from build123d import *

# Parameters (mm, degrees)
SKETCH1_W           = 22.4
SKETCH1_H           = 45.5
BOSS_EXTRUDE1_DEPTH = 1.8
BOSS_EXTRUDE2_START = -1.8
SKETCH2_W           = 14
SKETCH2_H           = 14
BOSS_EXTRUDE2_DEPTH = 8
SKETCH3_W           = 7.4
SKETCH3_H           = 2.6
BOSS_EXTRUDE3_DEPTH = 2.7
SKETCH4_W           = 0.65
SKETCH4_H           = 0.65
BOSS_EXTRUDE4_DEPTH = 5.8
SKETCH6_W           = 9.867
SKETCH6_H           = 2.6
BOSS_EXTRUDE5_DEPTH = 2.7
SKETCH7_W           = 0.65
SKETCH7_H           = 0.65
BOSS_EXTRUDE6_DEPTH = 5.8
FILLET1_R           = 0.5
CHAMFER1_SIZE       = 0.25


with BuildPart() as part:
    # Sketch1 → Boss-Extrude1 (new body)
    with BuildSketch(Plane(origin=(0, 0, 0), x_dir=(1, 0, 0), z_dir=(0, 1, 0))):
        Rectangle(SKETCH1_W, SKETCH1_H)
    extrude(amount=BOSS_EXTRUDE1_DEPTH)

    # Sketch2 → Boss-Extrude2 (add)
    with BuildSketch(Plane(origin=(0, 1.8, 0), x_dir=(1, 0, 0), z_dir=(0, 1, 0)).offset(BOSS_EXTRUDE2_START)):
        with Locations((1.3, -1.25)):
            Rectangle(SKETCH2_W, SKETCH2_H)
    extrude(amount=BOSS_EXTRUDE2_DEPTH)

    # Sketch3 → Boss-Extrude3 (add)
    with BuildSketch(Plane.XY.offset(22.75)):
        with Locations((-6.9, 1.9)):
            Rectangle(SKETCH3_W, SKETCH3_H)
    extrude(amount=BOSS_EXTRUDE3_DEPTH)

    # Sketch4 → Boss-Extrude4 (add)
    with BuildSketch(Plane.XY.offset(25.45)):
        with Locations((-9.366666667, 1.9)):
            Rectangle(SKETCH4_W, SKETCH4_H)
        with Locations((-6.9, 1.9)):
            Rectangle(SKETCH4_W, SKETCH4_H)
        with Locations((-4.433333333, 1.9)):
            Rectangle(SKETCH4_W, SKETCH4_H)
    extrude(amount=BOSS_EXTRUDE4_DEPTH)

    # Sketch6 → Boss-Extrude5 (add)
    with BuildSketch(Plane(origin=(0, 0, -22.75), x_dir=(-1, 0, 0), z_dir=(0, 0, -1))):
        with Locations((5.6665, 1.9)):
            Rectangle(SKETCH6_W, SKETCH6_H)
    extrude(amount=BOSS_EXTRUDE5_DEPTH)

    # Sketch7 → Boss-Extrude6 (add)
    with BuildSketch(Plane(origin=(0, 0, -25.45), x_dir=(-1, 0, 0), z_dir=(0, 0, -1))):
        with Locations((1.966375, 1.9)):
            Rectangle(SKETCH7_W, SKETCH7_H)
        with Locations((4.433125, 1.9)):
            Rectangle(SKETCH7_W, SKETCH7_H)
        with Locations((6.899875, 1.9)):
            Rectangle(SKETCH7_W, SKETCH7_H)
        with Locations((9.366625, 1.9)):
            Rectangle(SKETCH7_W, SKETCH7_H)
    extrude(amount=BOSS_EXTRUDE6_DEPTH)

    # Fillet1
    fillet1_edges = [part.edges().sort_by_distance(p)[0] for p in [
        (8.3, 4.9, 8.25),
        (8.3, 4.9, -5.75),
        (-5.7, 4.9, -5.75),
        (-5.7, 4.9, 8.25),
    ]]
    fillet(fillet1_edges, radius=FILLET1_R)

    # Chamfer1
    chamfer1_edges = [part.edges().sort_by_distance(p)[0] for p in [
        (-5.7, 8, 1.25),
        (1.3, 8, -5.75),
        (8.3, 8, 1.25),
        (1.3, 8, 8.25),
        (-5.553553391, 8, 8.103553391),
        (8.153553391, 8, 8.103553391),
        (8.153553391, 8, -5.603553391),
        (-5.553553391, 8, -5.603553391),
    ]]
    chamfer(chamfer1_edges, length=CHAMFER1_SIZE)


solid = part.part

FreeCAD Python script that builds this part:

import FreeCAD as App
import Part
import Sketcher
from FreeCAD import Vector


def edges_at(feature, points):
    """Names of the edges that pass closest to the given points."""
    edges = feature.Shape.Edges
    near = lambda p: min(range(len(edges)), key=lambda i: edges[i].distToShape(Part.Vertex(*p))[0])
    return sorted({f"Edge{near(p) + 1}" for p in points})

doc = App.newDocument("Part")
body = doc.addObject("PartDesign::Body", "Body")

# Sketch on XZ plane
sketch1 = doc.addObject("Sketcher::SketchObject", "Sketch")
body.addObject(sketch1)
sketch1.AttachmentSupport = (doc.XZ_Plane, [""])
sketch1.MapMode = "FlatFace"
sketch1.addGeometry([
    Part.LineSegment(Vector(-11, -23, 0), Vector(-11, 23, 0)),
    Part.LineSegment(Vector(-11, 23, 0), Vector(11, 23, 0)),
    Part.LineSegment(Vector(11, 23, 0), Vector(11, -23, 0)),
    Part.LineSegment(Vector(11, -23, 0), Vector(-11, -23, 0)),
], False)
sketch1.addConstraint([
    Sketcher.Constraint("Coincident", 0, 2, 1, 1),
    Sketcher.Constraint("Coincident", 1, 2, 2, 1),
    Sketcher.Constraint("Coincident", 2, 2, 3, 1),
    Sketcher.Constraint("Coincident", 3, 2, 0, 1),
    Sketcher.Constraint("Vertical", 0),
    Sketcher.Constraint("Horizontal", 1),
    Sketcher.Constraint("Vertical", 2),
    Sketcher.Constraint("Horizontal", 3),
    Sketcher.Constraint("Symmetric", 0, 2, 2, 2, -1, 1),
    Sketcher.Constraint("DistanceX", 1, 1, 1, 2, 22.4),
    Sketcher.Constraint("DistanceY", 0, 1, 0, 2, 45.5),
])
pad1 = doc.addObject("PartDesign::Pad", "Pad")
body.addObject(pad1)
pad1.Profile = sketch1
pad1.Length = 1.8
pad1.Reversed = True

# Sketch on XZ plane
sketch2 = doc.addObject("Sketcher::SketchObject", "Sketch001")
body.addObject(sketch2)
sketch2.AttachmentSupport = (doc.XZ_Plane, [""])
sketch2.MapMode = "FlatFace"
sketch2.addGeometry([
    Part.LineSegment(Vector(-6, -6, 0), Vector(-6, 8, 0)),
    Part.LineSegment(Vector(-6, 8, 0), Vector(8, 8, 0)),
    Part.LineSegment(Vector(8, 8, 0), Vector(8, -6, 0)),
    Part.LineSegment(Vector(8, -6, 0), Vector(-6, -6, 0)),
], False)
sketch2.addConstraint([
    Sketcher.Constraint("Coincident", 0, 2, 1, 1),
    Sketcher.Constraint("Coincident", 1, 2, 2, 1),
    Sketcher.Constraint("Coincident", 2, 2, 3, 1),
    Sketcher.Constraint("Coincident", 3, 2, 0, 1),
    Sketcher.Constraint("Vertical", 0),
    Sketcher.Constraint("Horizontal", 1),
    Sketcher.Constraint("Vertical", 2),
    Sketcher.Constraint("Horizontal", 3),
    Sketcher.Constraint("Equal", 3, 0),
    Sketcher.Constraint("DistanceX", 1, 1, 1, 2, 14.0),
    Sketcher.Constraint("DistanceX", 0, 2, -1, 1, 5.7),
    Sketcher.Constraint("DistanceY", -1, 1, 0, 2, 8.25),
])
pad2 = doc.addObject("PartDesign::Pad", "Pad001")
body.addObject(pad2)
pad2.Profile = sketch2
pad2.Length = 8
pad2.Reversed = True

# Sketch on XY plane
sketch3 = doc.addObject("Sketcher::SketchObject", "Sketch002")
body.addObject(sketch3)
sketch3.AttachmentSupport = (doc.XY_Plane, [""])
sketch3.MapMode = "FlatFace"
sketch3.AttachmentOffset = App.Placement(Vector(0, 0, 22.75), App.Rotation())
sketch3.addGeometry([
    Part.LineSegment(Vector(-10.6, 3.2, 0), Vector(-10.6, 0.6, 0)),
    Part.LineSegment(Vector(-10.6, 0.6, 0), Vector(-3.2, 0.6, 0)),
    Part.LineSegment(Vector(-3.2, 0.6, 0), Vector(-3.2, 3.2, 0)),
    Part.LineSegment(Vector(-3.2, 3.2, 0), Vector(-10.6, 3.2, 0)),
], False)
sketch3.addConstraint([
    Sketcher.Constraint("Coincident", 0, 2, 1, 1),
    Sketcher.Constraint("Coincident", 1, 2, 2, 1),
    Sketcher.Constraint("Coincident", 2, 2, 3, 1),
    Sketcher.Constraint("Coincident", 3, 2, 0, 1),
    Sketcher.Constraint("Vertical", 0),
    Sketcher.Constraint("Horizontal", 1),
    Sketcher.Constraint("Vertical", 2),
    Sketcher.Constraint("Horizontal", 3),
    Sketcher.Constraint("DistanceX", 1, 1, 1, 2, 7.4),
    Sketcher.Constraint("DistanceY", 0, 2, 0, 1, 2.6),
    Sketcher.Constraint("DistanceX", 0, 2, -1, 1, 10.6),
    Sketcher.Constraint("DistanceY", -1, 1, 0, 2, 0.6),
])
pad3 = doc.addObject("PartDesign::Pad", "Pad002")
body.addObject(pad3)
pad3.Profile = sketch3
pad3.Length = 2.7

# Sketch on XY plane
sketch4 = doc.addObject("Sketcher::SketchObject", "Sketch003")
body.addObject(sketch4)
sketch4.AttachmentSupport = (doc.XY_Plane, [""])
sketch4.MapMode = "FlatFace"
sketch4.AttachmentOffset = App.Placement(Vector(0, 0, 25.45), App.Rotation())
sketch4.addGeometry([
    Part.LineSegment(Vector(-9.7, 2.2, 0), Vector(-9.7, 1.6, 0)),  # 0
    Part.LineSegment(Vector(-9.7, 1.6, 0), Vector(-9, 1.6, 0)),  # 1
    Part.LineSegment(Vector(-9, 1.6, 0), Vector(-9, 2.2, 0)),  # 2
    Part.LineSegment(Vector(-9, 2.2, 0), Vector(-9.7, 2.2, 0)),  # 3
    Part.LineSegment(Vector(-7.2, 2.2, 0), Vector(-7.2, 1.6, 0)),  # 4
    Part.LineSegment(Vector(-7.2, 1.6, 0), Vector(-6.6, 1.6, 0)),  # 5
    Part.LineSegment(Vector(-6.6, 1.6, 0), Vector(-6.6, 2.2, 0)),  # 6
    Part.LineSegment(Vector(-6.6, 2.2, 0), Vector(-7.2, 2.2, 0)),  # 7
    Part.LineSegment(Vector(-4.8, 2.2, 0), Vector(-4.8, 1.6, 0)),  # 8
    Part.LineSegment(Vector(-4.8, 1.6, 0), Vector(-4.1, 1.6, 0)),  # 9
    Part.LineSegment(Vector(-4.1, 1.6, 0), Vector(-4.1, 2.2, 0)),  # 10
    Part.LineSegment(Vector(-4.1, 2.2, 0), Vector(-4.8, 2.2, 0)),  # 11
], False)
sketch4.addConstraint([
    Sketcher.Constraint("Coincident", 0, 2, 1, 1),
    Sketcher.Constraint("Coincident", 1, 2, 2, 1),
    Sketcher.Constraint("Coincident", 2, 2, 3, 1),
    Sketcher.Constraint("Coincident", 3, 2, 0, 1),
    Sketcher.Constraint("Coincident", 4, 2, 5, 1),
    Sketcher.Constraint("Coincident", 5, 2, 6, 1),
    Sketcher.Constraint("Coincident", 6, 2, 7, 1),
    Sketcher.Constraint("Coincident", 7, 2, 4, 1),
    Sketcher.Constraint("Coincident", 8, 2, 9, 1),
    Sketcher.Constraint("Coincident", 9, 2, 10, 1),
    Sketcher.Constraint("Coincident", 10, 2, 11, 1),
    Sketcher.Constraint("Coincident", 11, 2, 8, 1),
    Sketcher.Constraint("Vertical", 0),
    Sketcher.Constraint("Horizontal", 1),
    Sketcher.Constraint("Vertical", 2),
    Sketcher.Constraint("Horizontal", 3),
    Sketcher.Constraint("Vertical", 4),
    Sketcher.Constraint("Horizontal", 5),
    Sketcher.Constraint("Vertical", 6),
    Sketcher.Constraint("Horizontal", 7),
    Sketcher.Constraint("Vertical", 8),
    Sketcher.Constraint("Horizontal", 9),
    Sketcher.Constraint("Vertical", 10),
    Sketcher.Constraint("Horizontal", 11),
    Sketcher.Constraint("Horizontal", 1, 2, 4, 2),
    Sketcher.Constraint("Horizontal", 3, 2, 6, 2),
    Sketcher.Constraint("Horizontal", 5, 2, 8, 2),
    Sketcher.Constraint("Horizontal", 7, 2, 10, 2),
    Sketcher.Constraint("Equal", 3, 5),
    Sketcher.Constraint("Equal", 7, 9),
    Sketcher.Constraint("Equal", 11, 0),
    Sketcher.Constraint("DistanceX", 1, 1, 1, 2, 0.65),
    Sketcher.Constraint("DistanceY", -1, 1, 0, 2, 1.575),
    Sketcher.Constraint("DistanceX", 4, 2, -1, 1, 7.225),
    Sketcher.Constraint("DistanceX", 0, 2, -1, 1, 9.691667),
    Sketcher.Constraint("DistanceX", 8, 2, -1, 1, 4.758333),
])
pad4 = doc.addObject("PartDesign::Pad", "Pad003")
body.addObject(pad4)
pad4.Profile = sketch4
pad4.Length = 5.8

# Sketch on XY plane
sketch5 = doc.addObject("Sketcher::SketchObject", "Sketch004")
body.addObject(sketch5)
sketch5.AttachmentSupport = (doc.XY_Plane, [""])
sketch5.MapMode = "FlatFace"
sketch5.AttachmentOffset = App.Placement(Vector(0, 0, -22.75), App.Rotation())
sketch5.addGeometry([
    Part.LineSegment(Vector(-0.7, 3.2, 0), Vector(-0.7, 0.6, 0)),
    Part.LineSegment(Vector(-0.7, 0.6, 0), Vector(-10.6, 0.6, 0)),
    Part.LineSegment(Vector(-10.6, 0.6, 0), Vector(-10.6, 3.2, 0)),
    Part.LineSegment(Vector(-10.6, 3.2, 0), Vector(-0.7, 3.2, 0)),
], False)
sketch5.addConstraint([
    Sketcher.Constraint("Coincident", 0, 2, 1, 1),
    Sketcher.Constraint("Coincident", 1, 2, 2, 1),
    Sketcher.Constraint("Coincident", 2, 2, 3, 1),
    Sketcher.Constraint("Coincident", 3, 2, 0, 1),
    Sketcher.Constraint("Vertical", 0),
    Sketcher.Constraint("Horizontal", 1),
    Sketcher.Constraint("Vertical", 2),
    Sketcher.Constraint("Horizontal", 3),
    Sketcher.Constraint("DistanceY", 0, 2, 0, 1, 2.6),
    Sketcher.Constraint("DistanceY", -1, 1, 0, 2, 0.6),
    Sketcher.Constraint("DistanceX", 1, 2, -1, 1, 10.6),
    Sketcher.Constraint("DistanceX", 1, 2, 1, 1, 9.867),
])
pad5 = doc.addObject("PartDesign::Pad", "Pad004")
body.addObject(pad5)
pad5.Profile = sketch5
pad5.Length = 2.7
pad5.Reversed = True

# Sketch on XY plane
sketch6 = doc.addObject("Sketcher::SketchObject", "Sketch005")
body.addObject(sketch6)
sketch6.AttachmentSupport = (doc.XY_Plane, [""])
sketch6.MapMode = "FlatFace"
sketch6.AttachmentOffset = App.Placement(Vector(0, 0, -25.45), App.Rotation())
sketch6.addGeometry([
    Part.LineSegment(Vector(-1.6, 2.2, 0), Vector(-1.6, 1.6, 0)),  # 0
    Part.LineSegment(Vector(-1.6, 1.6, 0), Vector(-2.3, 1.6, 0)),  # 1
    Part.LineSegment(Vector(-2.3, 1.6, 0), Vector(-2.3, 2.2, 0)),  # 2
    Part.LineSegment(Vector(-2.3, 2.2, 0), Vector(-1.6, 2.2, 0)),  # 3
    Part.LineSegment(Vector(-4.1, 2.2, 0), Vector(-4.1, 1.6, 0)),  # 4
    Part.LineSegment(Vector(-4.1, 1.6, 0), Vector(-4.8, 1.6, 0)),  # 5
    Part.LineSegment(Vector(-4.8, 1.6, 0), Vector(-4.8, 2.2, 0)),  # 6
    Part.LineSegment(Vector(-4.8, 2.2, 0), Vector(-4.1, 2.2, 0)),  # 7
    Part.LineSegment(Vector(-6.6, 2.2, 0), Vector(-6.6, 1.6, 0)),  # 8
    Part.LineSegment(Vector(-6.6, 1.6, 0), Vector(-7.2, 1.6, 0)),  # 9
    Part.LineSegment(Vector(-7.2, 1.6, 0), Vector(-7.2, 2.2, 0)),  # 10
    Part.LineSegment(Vector(-7.2, 2.2, 0), Vector(-6.6, 2.2, 0)),  # 11
    Part.LineSegment(Vector(-9, 2.2, 0), Vector(-9, 1.6, 0)),  # 12
    Part.LineSegment(Vector(-9, 1.6, 0), Vector(-9.7, 1.6, 0)),  # 13
    Part.LineSegment(Vector(-9.7, 1.6, 0), Vector(-9.7, 2.2, 0)),  # 14
    Part.LineSegment(Vector(-9.7, 2.2, 0), Vector(-9, 2.2, 0)),  # 15
], False)
sketch6.addConstraint([
    Sketcher.Constraint("Coincident", 0, 2, 1, 1),
    Sketcher.Constraint("Coincident", 1, 2, 2, 1),
    Sketcher.Constraint("Coincident", 2, 2, 3, 1),
    Sketcher.Constraint("Coincident", 3, 2, 0, 1),
    Sketcher.Constraint("Coincident", 4, 2, 5, 1),
    Sketcher.Constraint("Coincident", 5, 2, 6, 1),
    Sketcher.Constraint("Coincident", 6, 2, 7, 1),
    Sketcher.Constraint("Coincident", 7, 2, 4, 1),
    Sketcher.Constraint("Coincident", 8, 2, 9, 1),
    Sketcher.Constraint("Coincident", 9, 2, 10, 1),
    Sketcher.Constraint("Coincident", 10, 2, 11, 1),
    Sketcher.Constraint("Coincident", 11, 2, 8, 1),
    Sketcher.Constraint("Coincident", 12, 2, 13, 1),
    Sketcher.Constraint("Coincident", 13, 2, 14, 1),
    Sketcher.Constraint("Coincident", 14, 2, 15, 1),
    Sketcher.Constraint("Coincident", 15, 2, 12, 1),
    Sketcher.Constraint("Vertical", 0),
    Sketcher.Constraint("Horizontal", 1),
    Sketcher.Constraint("Vertical", 2),
    Sketcher.Constraint("Horizontal", 3),
    Sketcher.Constraint("Vertical", 4),
    Sketcher.Constraint("Horizontal", 5),
    Sketcher.Constraint("Vertical", 6),
    Sketcher.Constraint("Horizontal", 7),
    Sketcher.Constraint("Vertical", 8),
    Sketcher.Constraint("Horizontal", 9),
    Sketcher.Constraint("Vertical", 10),
    Sketcher.Constraint("Horizontal", 11),
    Sketcher.Constraint("Vertical", 12),
    Sketcher.Constraint("Horizontal", 13),
    Sketcher.Constraint("Vertical", 14),
    Sketcher.Constraint("Horizontal", 15),
    Sketcher.Constraint("Horizontal", 1, 2, 4, 2),
    Sketcher.Constraint("Horizontal", 3, 2, 6, 2),
    Sketcher.Constraint("Horizontal", 5, 2, 8, 2),
    Sketcher.Constraint("Horizontal", 7, 2, 10, 2),
    Sketcher.Constraint("Horizontal", 9, 2, 12, 2),
    Sketcher.Constraint("Horizontal", 11, 2, 14, 2),
    Sketcher.Constraint("Equal", 3, 5),
    Sketcher.Constraint("Equal", 7, 9),
    Sketcher.Constraint("Equal", 11, 13),
    Sketcher.Constraint("Equal", 15, 0),
    Sketcher.Constraint("DistanceX", 1, 2, 1, 1, 0.65),
    Sketcher.Constraint("DistanceY", -1, 1, 0, 2, 1.575),
    Sketcher.Constraint("DistanceX", 8, 2, 1, 2, 4.2835),
    Sketcher.Constraint("DistanceX", 12, 2, 5, 2, 4.2835),
    Sketcher.Constraint("DistanceX", 4, 2, 1, 2, 1.81675),
    Sketcher.Constraint("DistanceX", 0, 2, -1, 1, 1.641375),
])
pad6 = doc.addObject("PartDesign::Pad", "Pad005")
body.addObject(pad6)
pad6.Profile = sketch6
pad6.Length = 5.8
pad6.Reversed = True
doc.recompute()

fillet = doc.addObject("PartDesign::Fillet", "Fillet")
body.addObject(fillet)
fillet.Base = (pad6, edges_at(pad6, [
    (8.3, 4.9, 8.25),
    (8.3, 4.9, -5.75),
    (-5.7, 4.9, -5.75),
    (-5.7, 4.9, 8.25),
]))
fillet.Radius = 0.5
doc.recompute()

chamfer = doc.addObject("PartDesign::Chamfer", "Chamfer")
body.addObject(chamfer)
chamfer.Base = (fillet, edges_at(fillet, [
    (-5.7, 8, 1.25),
    (1.3, 8, -5.75),
    (8.3, 8, 1.25),
    (1.3, 8, 8.25),
    (-5.554, 8, 8.104),
    (8.154, 8, 8.104),
    (8.154, 8, -5.604),
    (-5.554, 8, -5.604),
]))
chamfer.Size = 0.25

doc.recompute()
